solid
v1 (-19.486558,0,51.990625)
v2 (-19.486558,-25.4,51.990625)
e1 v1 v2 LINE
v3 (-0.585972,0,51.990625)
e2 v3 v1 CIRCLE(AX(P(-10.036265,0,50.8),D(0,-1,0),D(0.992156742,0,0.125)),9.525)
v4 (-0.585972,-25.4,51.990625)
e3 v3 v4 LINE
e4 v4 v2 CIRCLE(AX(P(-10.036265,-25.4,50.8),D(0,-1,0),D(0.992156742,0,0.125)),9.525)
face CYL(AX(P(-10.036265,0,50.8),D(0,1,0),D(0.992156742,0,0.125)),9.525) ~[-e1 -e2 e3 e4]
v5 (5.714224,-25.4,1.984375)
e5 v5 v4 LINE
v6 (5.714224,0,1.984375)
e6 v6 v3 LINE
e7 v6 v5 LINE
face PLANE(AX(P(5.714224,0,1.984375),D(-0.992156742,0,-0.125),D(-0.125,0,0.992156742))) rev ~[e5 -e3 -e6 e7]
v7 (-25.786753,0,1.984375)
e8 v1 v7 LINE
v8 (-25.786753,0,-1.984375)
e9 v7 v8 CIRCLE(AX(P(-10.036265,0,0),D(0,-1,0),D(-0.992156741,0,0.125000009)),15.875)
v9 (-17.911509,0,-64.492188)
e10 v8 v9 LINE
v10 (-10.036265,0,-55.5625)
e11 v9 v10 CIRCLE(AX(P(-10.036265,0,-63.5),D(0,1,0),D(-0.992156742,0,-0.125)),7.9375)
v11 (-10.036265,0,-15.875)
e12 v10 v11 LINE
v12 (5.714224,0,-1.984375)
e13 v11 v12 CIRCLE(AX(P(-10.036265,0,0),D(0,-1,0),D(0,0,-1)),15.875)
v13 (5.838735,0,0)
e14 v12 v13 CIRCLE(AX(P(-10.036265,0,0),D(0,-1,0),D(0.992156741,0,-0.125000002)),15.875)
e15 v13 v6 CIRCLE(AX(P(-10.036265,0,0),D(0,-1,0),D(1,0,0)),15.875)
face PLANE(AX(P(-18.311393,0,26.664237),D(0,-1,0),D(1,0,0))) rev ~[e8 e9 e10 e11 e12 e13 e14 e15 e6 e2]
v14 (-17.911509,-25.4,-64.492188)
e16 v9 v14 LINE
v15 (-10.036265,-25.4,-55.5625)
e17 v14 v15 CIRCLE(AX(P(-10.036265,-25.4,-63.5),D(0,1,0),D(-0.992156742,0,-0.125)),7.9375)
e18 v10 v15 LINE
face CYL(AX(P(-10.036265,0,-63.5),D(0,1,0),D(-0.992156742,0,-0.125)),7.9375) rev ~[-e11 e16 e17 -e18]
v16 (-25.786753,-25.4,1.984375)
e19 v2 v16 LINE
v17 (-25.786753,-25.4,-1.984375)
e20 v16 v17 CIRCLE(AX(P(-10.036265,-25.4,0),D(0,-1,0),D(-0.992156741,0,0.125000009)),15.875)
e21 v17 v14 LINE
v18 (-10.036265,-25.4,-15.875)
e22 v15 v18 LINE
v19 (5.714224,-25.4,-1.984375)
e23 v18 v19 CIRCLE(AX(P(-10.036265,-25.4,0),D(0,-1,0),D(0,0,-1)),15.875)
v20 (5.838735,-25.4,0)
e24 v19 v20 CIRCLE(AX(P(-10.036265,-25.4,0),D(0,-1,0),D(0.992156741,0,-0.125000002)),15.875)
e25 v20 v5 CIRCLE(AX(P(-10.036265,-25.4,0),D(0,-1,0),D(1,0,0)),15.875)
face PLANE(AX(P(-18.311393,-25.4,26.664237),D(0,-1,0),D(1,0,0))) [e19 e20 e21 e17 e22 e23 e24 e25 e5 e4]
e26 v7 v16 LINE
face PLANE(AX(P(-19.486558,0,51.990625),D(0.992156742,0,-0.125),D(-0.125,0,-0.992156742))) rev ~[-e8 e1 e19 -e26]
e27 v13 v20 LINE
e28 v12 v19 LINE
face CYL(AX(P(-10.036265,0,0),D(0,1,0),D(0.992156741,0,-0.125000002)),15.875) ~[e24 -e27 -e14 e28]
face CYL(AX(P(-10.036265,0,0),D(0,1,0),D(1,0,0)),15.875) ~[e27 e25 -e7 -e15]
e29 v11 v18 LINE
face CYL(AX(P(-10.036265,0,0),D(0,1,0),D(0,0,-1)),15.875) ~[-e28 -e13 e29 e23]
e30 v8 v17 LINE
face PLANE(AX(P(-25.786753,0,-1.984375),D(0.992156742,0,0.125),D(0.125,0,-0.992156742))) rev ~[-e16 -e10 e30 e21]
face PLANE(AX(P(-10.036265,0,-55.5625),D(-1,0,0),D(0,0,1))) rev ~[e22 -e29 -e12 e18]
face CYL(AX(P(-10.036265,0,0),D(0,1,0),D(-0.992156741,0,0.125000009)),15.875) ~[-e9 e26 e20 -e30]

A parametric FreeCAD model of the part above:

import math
import FreeCAD as App
import Part
import Sketcher
from FreeCAD import Vector
Q = App.Units.Quantity

doc = App.newDocument("Part")
body = doc.addObject("PartDesign::Body", "Body")

sketch1 = doc.addObject("Sketcher::SketchObject", "Sketch")
body.addObject(sketch1)
sketch1.AttachmentSupport = (doc.XZ_Plane, [""])
sketch1.MapMode = "FlatFace"
sketch1.addGeometry([
    Part.LineSegment(Vector(-19.486558, 51.990625, 0), Vector(-25.786753, 1.984375, 0)),
    Part.ArcOfCircle(Part.Circle(Vector(-10.036265, 0, 0), Vector(0, 0, 1), 15.875), math.radians(172.819244), math.radians(187.180756)),
    Part.LineSegment(Vector(-25.786753, -1.984375, 0), Vector(-17.911509, -64.492188, 0)),
    Part.ArcOfCircle(Part.Circle(Vector(-10.036265, -63.5, 0), Vector(0, 0, 1), 7.9375), math.radians(90), math.radians(187.180756)),
    Part.LineSegment(Vector(-10.036265, -55.5625, 0), Vector(-10.036265, -15.875, 0)),
    Part.ArcOfCircle(Part.Circle(Vector(-10.036265, 0, 0), Vector(0, 0, 1), 15.875), math.radians(-90), math.radians(-7.180756)),
    Part.ArcOfCircle(Part.Circle(Vector(-10.036265, 0, 0), Vector(0, 0, 1), 15.875), math.radians(-7.180756), math.radians(0)),
    Part.ArcOfCircle(Part.Circle(Vector(-10.036265, 0, 0), Vector(0, 0, 1), 15.875), math.radians(0), math.radians(7.180756)),
    Part.LineSegment(Vector(5.714224, 1.984375, 0), Vector(-0.585972, 51.990625, 0)),
    Part.ArcOfCircle(Part.Circle(Vector(-10.036265, 50.8, 0), Vector(0, 0, 1), 9.525), math.radians(7.180756), math.radians(172.819244)),
], False)
sketch1.addConstraint([
    Sketcher.Constraint("Tangent", 0, 2, 1, 1),
    Sketcher.Constraint("Tangent", 1, 2, 2, 1),
    Sketcher.Constraint("Tangent", 2, 2, 3, 2),
    Sketcher.Constraint("Coincident", 3, 1, 4, 1),
    Sketcher.Constraint("Coincident", 4, 2, 5, 1),
    Sketcher.Constraint("Tangent", 5, 2, 6, 1),
    Sketcher.Constraint("Tangent", 6, 2, 7, 1),
    Sketcher.Constraint("Tangent", 7, 2, 8, 1),
    Sketcher.Constraint("Tangent", 8, 2, 9, 1),
    Sketcher.Constraint("Tangent", 9, 2, 0, 1),
    Sketcher.Constraint("Vertical", 4),
    Sketcher.Constraint("Coincident", 5, 3, 1, 3),
    Sketcher.Constraint("Coincident", 7, 3, 1, 3),
    Sketcher.Constraint("Equal", 1, 5),
    Sketcher.Constraint("Symmetric", 0, 2, 1, 2, -1),
    Sketcher.Constraint("PointOnObject", 6, 2, -1),
    Sketcher.Constraint("Parallel", 2, 8),
    Sketcher.Constraint("Horizontal", 1, 2, 5, 2),
    Sketcher.Constraint("Vertical", 1, 3, 3, 3),
    Sketcher.Constraint("Vertical", 9, 3, 3, 1),
    Sketcher.Constraint("DistanceY", -1, 1, 9, 3, Q("2 in")),
    Sketcher.Constraint("Radius", 1, Q("0.625 in")),
    Sketcher.Constraint("Radius", 3, Q("0.3125 in")),
    Sketcher.Constraint("Radius", 9, Q("0.375 in")),
    Sketcher.Constraint("DistanceX", 2, 2, -1, 1, 17.911509),
])
pad1 = doc.addObject("PartDesign::Pad", "Pad")
body.addObject(pad1)
pad1.Profile = sketch1
pad1.Length = Q("1 in")

doc.recompute()
